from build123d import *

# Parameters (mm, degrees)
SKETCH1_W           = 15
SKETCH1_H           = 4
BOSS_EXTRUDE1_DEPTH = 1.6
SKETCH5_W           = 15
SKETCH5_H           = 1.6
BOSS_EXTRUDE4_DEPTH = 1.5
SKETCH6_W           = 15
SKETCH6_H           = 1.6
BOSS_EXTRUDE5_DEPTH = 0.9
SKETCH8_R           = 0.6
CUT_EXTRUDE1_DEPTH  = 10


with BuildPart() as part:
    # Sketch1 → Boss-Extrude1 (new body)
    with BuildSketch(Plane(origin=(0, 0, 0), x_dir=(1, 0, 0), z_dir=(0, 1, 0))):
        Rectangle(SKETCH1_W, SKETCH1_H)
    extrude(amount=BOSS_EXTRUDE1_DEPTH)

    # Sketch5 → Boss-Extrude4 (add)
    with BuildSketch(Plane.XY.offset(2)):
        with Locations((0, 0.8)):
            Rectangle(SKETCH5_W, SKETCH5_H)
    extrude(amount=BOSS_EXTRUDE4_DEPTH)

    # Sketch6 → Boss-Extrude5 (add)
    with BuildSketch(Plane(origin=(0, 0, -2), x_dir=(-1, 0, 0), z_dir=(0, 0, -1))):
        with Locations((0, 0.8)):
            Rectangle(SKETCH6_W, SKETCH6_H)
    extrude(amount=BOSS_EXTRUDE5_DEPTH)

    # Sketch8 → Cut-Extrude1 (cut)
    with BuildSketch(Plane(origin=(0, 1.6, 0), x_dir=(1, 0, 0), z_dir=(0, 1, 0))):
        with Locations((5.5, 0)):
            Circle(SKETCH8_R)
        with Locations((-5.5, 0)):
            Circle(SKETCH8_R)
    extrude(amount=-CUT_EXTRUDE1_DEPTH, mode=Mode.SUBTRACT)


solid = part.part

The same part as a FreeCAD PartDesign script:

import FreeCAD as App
import Part
import Sketcher
from FreeCAD import Vector
Q = App.Units.Quantity


def add_polygon(sketch, points):
    """Adds a closed chain of lines whose ends are joined by coincident constraints."""
    first, n = sketch.GeometryCount, len(points)
    for a, b in zip(points, points[1:] + points[:1]):
        sketch.addGeometry(Part.LineSegment(App.Vector(*a, 0), App.Vector(*b, 0)), False)
    for i in range(n):
        sketch.addConstraint(Sketcher.Constraint("Coincident", first + i, 2, first + (i + 1) % n, 1))

doc = App.newDocument("Part")
params = doc.addObject("Spreadsheet::Sheet", "Params")
for row, (alias, value) in enumerate([
    ("sketch1_width", "15 mm"),
    ("sketch1_height", "4 mm"),
    ("pad1_length", "1.6 mm"),
    ("sketch2_width", "15 mm"),
    ("sketch2_height", "1.6 mm"),
    ("pad2_length", "1.5 mm"),
    ("sketch3_width", "15 mm"),
    ("sketch3_height", "1.6 mm"),
    ("pad3_length", "0.9 mm"),
    ("sketch4_diameter", "1.2 mm"),
    ("pocket1_length", "10 mm"),
], start=1):
    params.set(f"A{row}", alias)
    params.set(f"B{row}", "=" + value)
    params.setAlias(f"B{row}", alias)

body = doc.addObject("PartDesign::Body", "Body")

# Sketch on XZ plane
sketch1 = body.newObject("Sketcher::SketchObject", "Sketch")
sketch1.AttachmentSupport = (doc.getObject("XZ_Plane"), [""])
sketch1.MapMode = "FlatFace"
add_polygon(sketch1, [(-7.5, -2), (-7.5, 2), (7.5, 2), (7.5, -2)])  # lines 0-3
sketch1.addConstraint(Sketcher.Constraint("Vertical", 0))
sketch1.addConstraint(Sketcher.Constraint("Horizontal", 1))
sketch1.addConstraint(Sketcher.Constraint("Vertical", 2))
sketch1.addConstraint(Sketcher.Constraint("Horizontal", 3))
sketch1.addConstraint(Sketcher.Constraint("Symmetric", 0, 2, 2, 2, -1, 1))
sketch1.addConstraint(Sketcher.Constraint("DistanceX", 1, 1, 1, 2, Q("15 mm")))
sketch1.addConstraint(Sketcher.Constraint("DistanceY", 0, 1, 0, 2, Q("4 mm")))
sketch1.setExpression("Constraints[9]", "Params.sketch1_width")
sketch1.setExpression("Constraints[10]", "Params.sketch1_height")
pad1 = body.newObject("PartDesign::Pad", "Pad")
pad1.Profile = sketch1
pad1.setExpression("Length", "Params.pad1_length")
pad1.Reversed = True

# Sketch on XY plane
sketch2 = body.newObject("Sketcher::SketchObject", "Sketch001")
sketch2.AttachmentSupport = (doc.getObject("XY_Plane"), [""])
sketch2.MapMode = "FlatFace"
sketch2.AttachmentOffset = App.Placement(Vector(0, 0, 2), App.Rotation())
add_polygon(sketch2, [(-7.5, 1.6), (-7.5, 0), (7.5, 0), (7.5, 1.6)])  # lines 0-3
sketch2.addConstraint(Sketcher.Constraint("Vertical", 0))
sketch2.addConstraint(Sketcher.Constraint("Horizontal", 1))
sketch2.addConstraint(Sketcher.Constraint("Vertical", 2))
sketch2.addConstraint(Sketcher.Constraint("Horizontal", 3))
sketch2.addConstraint(Sketcher.Constraint("Symmetric", 0, 2, 1, 2, -1, 1))
sketch2.addConstraint(Sketcher.Constraint("DistanceX", 1, 1, 1, 2, Q("15 mm")))
sketch2.addConstraint(Sketcher.Constraint("DistanceY", 0, 2, 0, 1, Q("1.6 mm")))
sketch2.setExpression("Constraints[9]", "Params.sketch2_width")
sketch2.setExpression("Constraints[10]", "Params.sketch2_height")
pad2 = body.newObject("PartDesign::Pad", "Pad001")
pad2.Profile = sketch2
pad2.setExpression("Length", "Params.pad2_length")

# Sketch on XY plane
sketch3 = body.newObject("Sketcher::SketchObject", "Sketch002")
sketch3.AttachmentSupport = (doc.getObject("XY_Plane"), [""])
sketch3.MapMode = "FlatFace"
sketch3.AttachmentOffset = App.Placement(Vector(0, 0, -2), App.Rotation())
add_polygon(sketch3, [(7.5, 1.6), (7.5, 0), (-7.5, 0), (-7.5, 1.6)])  # lines 0-3
sketch3.addConstraint(Sketcher.Constraint("Vertical", 0))
sketch3.addConstraint(Sketcher.Constraint("Horizontal", 1))
sketch3.addConstraint(Sketcher.Constraint("Vertical", 2))
sketch3.addConstraint(Sketcher.Constraint("Horizontal", 3))
sketch3.addConstraint(Sketcher.Constraint("Symmetric", 0, 2, 1, 2, -1, 1))
sketch3.addConstraint(Sketcher.Constraint("DistanceX", 1, 2, 1, 1, Q("15 mm")))
sketch3.addConstraint(Sketcher.Constraint("DistanceY", 0, 2, 0, 1, Q("1.6 mm")))
sketch3.setExpression("Constraints[9]", "Params.sketch3_width")
sketch3.setExpression("Constraints[10]", "Params.sketch3_height")
pad3 = body.newObject("PartDesign::Pad", "Pad002")
pad3.Profile = sketch3
pad3.setExpression("Length", "Params.pad3_length")
pad3.Reversed = True

# Sketch on XZ plane
sketch4 = body.newObject("Sketcher::SketchObject", "Sketch003")
sketch4.AttachmentSupport = (doc.getObject("XZ_Plane"), [""])
sketch4.MapMode = "FlatFace"
sketch4.AttachmentOffset = App.Placement(Vector(0, 0, -1.6), App.Rotation())
sketch4.addGeometry(Part.Circle(Vector(5.5, 0, 0), Vector(0, 0, 1), 0.6), False)
sketch4.addGeometry(Part.Circle(Vector(-5.5, 0, 0), Vector(0, 0, 1), 0.6), False)
sketch4.addConstraint(Sketcher.Constraint("Equal", 0, 1))
sketch4.addConstraint(Sketcher.Constraint("Symmetric", 0, 3, 1, 3, -1, 1))
sketch4.addConstraint(Sketcher.Constraint("PointOnObject", 0, 3, -1))
sketch4.addConstraint(Sketcher.Constraint("Diameter", 0, Q("1.2 mm")))
sketch4.addConstraint(Sketcher.Constraint("DistanceX", 1, 3, 0, 3, Q("11 mm")))
sketch4.setExpression("Constraints[3]", "Params.sketch4_diameter")
pocket1 = body.newObject("PartDesign::Pocket", "Pocket")
pocket1.Profile = sketch4
pocket1.setExpression("Length", "Params.pocket1_length")
pocket1.Reversed = True

doc.recompute()
